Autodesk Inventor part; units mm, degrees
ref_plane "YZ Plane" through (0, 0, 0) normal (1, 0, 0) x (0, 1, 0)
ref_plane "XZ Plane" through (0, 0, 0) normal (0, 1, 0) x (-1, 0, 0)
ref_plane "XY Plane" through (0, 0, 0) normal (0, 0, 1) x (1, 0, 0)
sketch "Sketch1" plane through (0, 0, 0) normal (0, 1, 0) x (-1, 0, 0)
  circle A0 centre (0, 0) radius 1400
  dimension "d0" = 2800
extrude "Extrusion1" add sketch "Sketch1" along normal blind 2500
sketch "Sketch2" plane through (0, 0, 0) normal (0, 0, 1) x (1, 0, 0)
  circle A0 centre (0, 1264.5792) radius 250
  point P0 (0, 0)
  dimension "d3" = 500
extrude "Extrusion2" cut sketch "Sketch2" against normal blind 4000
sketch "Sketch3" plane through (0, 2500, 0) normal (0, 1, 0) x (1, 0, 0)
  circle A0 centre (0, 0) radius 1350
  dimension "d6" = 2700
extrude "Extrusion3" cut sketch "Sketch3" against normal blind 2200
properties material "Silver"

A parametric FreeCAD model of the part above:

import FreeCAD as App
import Part
import Sketcher
from FreeCAD import Vector

doc = App.newDocument("Part")
body = doc.addObject("PartDesign::Body", "Body")

# Sketch on XZ plane
sketch1 = body.newObject("Sketcher::SketchObject", "Sketch")
sketch1.AttachmentSupport = (doc.getObject("XZ_Plane"), [""])
sketch1.MapMode = "FlatFace"
sketch1.addGeometry(Part.Circle(Vector(0, 0, 0), Vector(0, 0, 1), 1400), False)
sketch1.addConstraint([
    Sketcher.Constraint("Coincident", 0, 3, -1, 1),
    Sketcher.Constraint("Diameter", 0, 2800.0),
])
pad1 = body.newObject("PartDesign::Pad", "Pad")
pad1.Profile = sketch1
pad1.Length = 2500
pad1.Reversed = True

# Sketch on XY plane
sketch2 = body.newObject("Sketcher::SketchObject", "Sketch001")
sketch2.AttachmentSupport = (doc.getObject("XY_Plane"), [""])
sketch2.MapMode = "FlatFace"
sketch2.addGeometry(Part.Circle(Vector(0, 1265, 0), Vector(0, 0, 1), 250), False)
sketch2.addConstraint([
    Sketcher.Constraint("PointOnObject", 0, 3, -2),
    Sketcher.Constraint("Diameter", 0, 500.0),
    Sketcher.Constraint("DistanceY", -1, 1, 0, 3, 1264.5792),
])
pocket1 = body.newObject("PartDesign::Pocket", "Pocket")
pocket1.Profile = sketch2
pocket1.Length = 4000

# Sketch on XZ plane
sketch3 = body.newObject("Sketcher::SketchObject", "Sketch002")
sketch3.AttachmentSupport = (doc.getObject("XZ_Plane"), [""])
sketch3.MapMode = "FlatFace"
sketch3.AttachmentOffset = App.Placement(Vector(0, 0, -2500), App.Rotation())
sketch3.addGeometry(Part.Circle(Vector(0, 0, 0), Vector(0, 0, 1), 1350), False)
sketch3.addConstraint([
    Sketcher.Constraint("Coincident", 0, 3, -1, 1),
    Sketcher.Constraint("Diameter", 0, 2700.0),
])
pocket2 = body.newObject("PartDesign::Pocket", "Pocket001")
pocket2.Profile = sketch3
pocket2.Length = 2200
pocket2.Reversed = True

doc.recompute()
